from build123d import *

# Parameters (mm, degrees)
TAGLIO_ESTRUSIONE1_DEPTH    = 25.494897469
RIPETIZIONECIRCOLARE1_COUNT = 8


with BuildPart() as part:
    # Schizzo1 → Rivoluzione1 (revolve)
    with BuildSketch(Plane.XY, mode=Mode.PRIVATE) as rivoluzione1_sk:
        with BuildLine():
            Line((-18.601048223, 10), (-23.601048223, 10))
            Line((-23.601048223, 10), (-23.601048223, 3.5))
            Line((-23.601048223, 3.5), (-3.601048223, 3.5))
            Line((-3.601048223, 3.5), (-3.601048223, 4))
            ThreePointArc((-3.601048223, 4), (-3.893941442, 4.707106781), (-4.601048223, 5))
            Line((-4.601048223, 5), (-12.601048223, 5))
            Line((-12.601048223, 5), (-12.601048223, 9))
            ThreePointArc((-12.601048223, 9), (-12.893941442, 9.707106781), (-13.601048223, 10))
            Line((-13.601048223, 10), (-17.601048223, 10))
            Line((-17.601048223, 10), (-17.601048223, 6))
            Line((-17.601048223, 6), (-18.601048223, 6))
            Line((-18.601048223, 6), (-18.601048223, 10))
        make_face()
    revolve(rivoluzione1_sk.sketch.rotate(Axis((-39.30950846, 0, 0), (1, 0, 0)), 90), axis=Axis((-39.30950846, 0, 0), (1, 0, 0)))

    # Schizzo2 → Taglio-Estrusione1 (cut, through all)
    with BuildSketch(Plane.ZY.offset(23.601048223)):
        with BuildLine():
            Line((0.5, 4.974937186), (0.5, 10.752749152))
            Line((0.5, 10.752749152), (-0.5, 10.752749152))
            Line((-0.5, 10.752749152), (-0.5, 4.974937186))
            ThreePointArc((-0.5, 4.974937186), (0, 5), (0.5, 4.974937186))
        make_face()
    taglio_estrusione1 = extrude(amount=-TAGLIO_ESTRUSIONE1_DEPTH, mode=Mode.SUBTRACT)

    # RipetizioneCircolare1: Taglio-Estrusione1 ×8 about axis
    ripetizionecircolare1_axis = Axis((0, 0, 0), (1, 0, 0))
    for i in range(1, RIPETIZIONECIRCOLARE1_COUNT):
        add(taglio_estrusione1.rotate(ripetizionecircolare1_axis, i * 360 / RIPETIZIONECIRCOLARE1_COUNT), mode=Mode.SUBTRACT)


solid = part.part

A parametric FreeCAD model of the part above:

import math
import FreeCAD as App
import Part
import Sketcher

doc = App.newDocument("Part")
params = doc.addObject("Spreadsheet::Sheet", "Params")
for row, (alias, value) in enumerate([
    ("sketch1_radius", "1 mm"),
    ("sketch1_width", "5 mm"),
    ("sketch1_width2", "20 mm"),
    ("sketch1_width3", "8 mm"),
    ("sketch1_width4", "4 mm"),
    ("revolution_angle", "360 deg"),
    ("sketch2_radius", "5 mm"),
    ("sketch2_height", "1 mm"),
], start=1):
    params.set(f"A{row}", alias)
    params.set(f"B{row}", "=" + value)
    params.setAlias(f"B{row}", alias)

body = doc.addObject("PartDesign::Body", "Body")

# Sketch on XY plane
sketch1 = body.newObject("Sketcher::SketchObject", "Sketch")
sketch1.AttachmentSupport = (doc.getObject("XY_Plane"), [""])
sketch1.MapMode = "FlatFace"
sketch1.addGeometry([
    Part.LineSegment(App.Vector(-18.6, 10, 0), App.Vector(-23.6, 10, 0)),  # 0
    Part.LineSegment(App.Vector(-23.6, 10, 0), App.Vector(-23.6, 3.5, 0)),  # 1
    Part.LineSegment(App.Vector(-23.6, 3.5, 0), App.Vector(-3.6, 3.5, 0)),  # 2
    Part.LineSegment(App.Vector(-3.6, 3.5, 0), App.Vector(-3.6, 4, 0)),  # 3
    Part.ArcOfCircle(Part.Circle(App.Vector(-4.6, 4, 0), App.Vector(0, 0, 1), 1), math.radians(0), math.radians(90)),  # 4
    Part.LineSegment(App.Vector(-4.6, 5, 0), App.Vector(-12.6, 5, 0)),  # 5
    Part.LineSegment(App.Vector(-12.6, 5, 0), App.Vector(-12.6, 9, 0)),  # 6
    Part.ArcOfCircle(Part.Circle(App.Vector(-13.6, 9, 0), App.Vector(0, 0, 1), 1), math.radians(0), math.radians(90)),  # 7
    Part.LineSegment(App.Vector(-13.6, 10, 0), App.Vector(-17.6, 10, 0)),  # 8
    Part.LineSegment(App.Vector(-17.6, 10, 0), App.Vector(-17.6, 6, 0)),  # 9
    Part.LineSegment(App.Vector(-17.6, 6, 0), App.Vector(-18.6, 6, 0)),  # 10
    Part.LineSegment(App.Vector(-18.6, 6, 0), App.Vector(-18.6, 10, 0)),  # 11
], False)
sketch1.addConstraint([
    Sketcher.Constraint("Coincident", 0, 2, 1, 1),
    Sketcher.Constraint("Coincident", 1, 2, 2, 1),
    Sketcher.Constraint("Coincident", 2, 2, 3, 1),
    Sketcher.Constraint("Tangent", 3, 2, 4, 1),
    Sketcher.Constraint("Tangent", 4, 2, 5, 1),
    Sketcher.Constraint("Coincident", 5, 2, 6, 1),
    Sketcher.Constraint("Tangent", 6, 2, 7, 1),
    Sketcher.Constraint("Tangent", 7, 2, 8, 1),
    Sketcher.Constraint("Coincident", 8, 2, 9, 1),
    Sketcher.Constraint("Coincident", 9, 2, 10, 1),
    Sketcher.Constraint("Coincident", 10, 2, 11, 1),
    Sketcher.Constraint("Coincident", 11, 2, 0, 1),
    Sketcher.Constraint("Horizontal", 0),
    Sketcher.Constraint("Vertical", 1),
    Sketcher.Constraint("Horizontal", 2),
    Sketcher.Constraint("Vertical", 3),
    Sketcher.Constraint("Horizontal", 5),
    Sketcher.Constraint("Vertical", 6),
    Sketcher.Constraint("Horizontal", 8),
    Sketcher.Constraint("Vertical", 9),
    Sketcher.Constraint("Horizontal", 10),
    Sketcher.Constraint("Vertical", 11),
    Sketcher.Constraint("Equal", 4, 7),
    Sketcher.Constraint("Horizontal", 0, 2, 7, 2),
    Sketcher.Constraint("Equal", 8, 6),
    Sketcher.Constraint("Equal", 6, 9),
    Sketcher.Constraint("Radius", 4, 1.0),
    Sketcher.Constraint("DistanceX", 0, 2, 0, 1, 5.0),
    Sketcher.Constraint("DistanceX", 2, 1, 2, 2, 20.0),
    Sketcher.Constraint("DistanceX", 5, 2, 5, 1, 8.0),
    Sketcher.Constraint("DistanceX", 8, 2, 8, 1, 4.0),
    Sketcher.Constraint("DistanceY", 1, 2, 1, 1, 6.5),
    Sketcher.Constraint("DistanceY", -1, 1, 4, 3, 4.0),
    Sketcher.Constraint("DistanceX", 4, 3, -1, 1, 4.601048),
])
sketch1.setExpression("Constraints[26]", "Params.sketch1_radius")
sketch1.setExpression("Constraints[27]", "Params.sketch1_width")
sketch1.setExpression("Constraints[28]", "Params.sketch1_width2")
sketch1.setExpression("Constraints[29]", "Params.sketch1_width3")
sketch1.setExpression("Constraints[30]", "Params.sketch1_width4")
revolution = body.newObject("PartDesign::Revolution", "Revolution")
revolution.Profile = sketch1
revolution.ReferenceAxis = (sketch1, ["H_Axis"])
revolution.setExpression("Angle", "Params.revolution_angle")

# Sketch on YZ plane
sketch2 = body.newObject("Sketcher::SketchObject", "Sketch001")
sketch2.AttachmentSupport = (doc.getObject("YZ_Plane"), [""])
sketch2.MapMode = "FlatFace"
sketch2.AttachmentOffset = App.Placement(App.Vector(0, 0, -23.601048), App.Rotation())
sketch2.addGeometry([
    Part.LineSegment(App.Vector(5, 0.5, 0), App.Vector(10.8, 0.5, 0)),
    Part.LineSegment(App.Vector(10.8, 0.5, 0), App.Vector(10.8, -0.5, 0)),
    Part.LineSegment(App.Vector(10.8, -0.5, 0), App.Vector(5, -0.5, 0)),
    Part.ArcOfCircle(Part.Circle(App.Vector(0, 0, 0), App.Vector(0, 0, 1), 5), math.radians(-5.74), math.radians(5.74)),
], False)
sketch2.addConstraint([
    Sketcher.Constraint("Coincident", 0, 2, 1, 1),
    Sketcher.Constraint("Coincident", 1, 2, 2, 1),
    Sketcher.Constraint("Coincident", 2, 2, 3, 1),
    Sketcher.Constraint("Coincident", 3, 2, 0, 1),
    Sketcher.Constraint("Horizontal", 0),
    Sketcher.Constraint("Vertical", 1),
    Sketcher.Constraint("Horizontal", 2),
    Sketcher.Constraint("Coincident", 3, 3, -1, 1),
    Sketcher.Constraint("Vertical", 2, 2, 3, 2),
    Sketcher.Constraint("Radius", 3, 5.0),
    Sketcher.Constraint("DistanceY", 1, 2, 1, 1, 1.0),
    Sketcher.Constraint("DistanceX", 0, 1, 0, 2, 5.777812),
])
sketch2.setExpression("Constraints[9]", "Params.sketch2_radius")
sketch2.setExpression("Constraints[10]", "Params.sketch2_height")
pocket1 = body.newObject("PartDesign::Pocket", "Pocket")
pocket1.Profile = sketch2
pocket1.Type = "ThroughAll"
pocket1.Reversed = True
doc.recompute()

polarpattern = body.newObject("PartDesign::PolarPattern", "PolarPattern")
polarpattern.Originals = [pocket1]
polarpattern.Axis = (doc.getObject("X_Axis"), [""])
polarpattern.Angle = 360
polarpattern.Occurrences = 8
body.Tip = polarpattern

doc.recompute()
